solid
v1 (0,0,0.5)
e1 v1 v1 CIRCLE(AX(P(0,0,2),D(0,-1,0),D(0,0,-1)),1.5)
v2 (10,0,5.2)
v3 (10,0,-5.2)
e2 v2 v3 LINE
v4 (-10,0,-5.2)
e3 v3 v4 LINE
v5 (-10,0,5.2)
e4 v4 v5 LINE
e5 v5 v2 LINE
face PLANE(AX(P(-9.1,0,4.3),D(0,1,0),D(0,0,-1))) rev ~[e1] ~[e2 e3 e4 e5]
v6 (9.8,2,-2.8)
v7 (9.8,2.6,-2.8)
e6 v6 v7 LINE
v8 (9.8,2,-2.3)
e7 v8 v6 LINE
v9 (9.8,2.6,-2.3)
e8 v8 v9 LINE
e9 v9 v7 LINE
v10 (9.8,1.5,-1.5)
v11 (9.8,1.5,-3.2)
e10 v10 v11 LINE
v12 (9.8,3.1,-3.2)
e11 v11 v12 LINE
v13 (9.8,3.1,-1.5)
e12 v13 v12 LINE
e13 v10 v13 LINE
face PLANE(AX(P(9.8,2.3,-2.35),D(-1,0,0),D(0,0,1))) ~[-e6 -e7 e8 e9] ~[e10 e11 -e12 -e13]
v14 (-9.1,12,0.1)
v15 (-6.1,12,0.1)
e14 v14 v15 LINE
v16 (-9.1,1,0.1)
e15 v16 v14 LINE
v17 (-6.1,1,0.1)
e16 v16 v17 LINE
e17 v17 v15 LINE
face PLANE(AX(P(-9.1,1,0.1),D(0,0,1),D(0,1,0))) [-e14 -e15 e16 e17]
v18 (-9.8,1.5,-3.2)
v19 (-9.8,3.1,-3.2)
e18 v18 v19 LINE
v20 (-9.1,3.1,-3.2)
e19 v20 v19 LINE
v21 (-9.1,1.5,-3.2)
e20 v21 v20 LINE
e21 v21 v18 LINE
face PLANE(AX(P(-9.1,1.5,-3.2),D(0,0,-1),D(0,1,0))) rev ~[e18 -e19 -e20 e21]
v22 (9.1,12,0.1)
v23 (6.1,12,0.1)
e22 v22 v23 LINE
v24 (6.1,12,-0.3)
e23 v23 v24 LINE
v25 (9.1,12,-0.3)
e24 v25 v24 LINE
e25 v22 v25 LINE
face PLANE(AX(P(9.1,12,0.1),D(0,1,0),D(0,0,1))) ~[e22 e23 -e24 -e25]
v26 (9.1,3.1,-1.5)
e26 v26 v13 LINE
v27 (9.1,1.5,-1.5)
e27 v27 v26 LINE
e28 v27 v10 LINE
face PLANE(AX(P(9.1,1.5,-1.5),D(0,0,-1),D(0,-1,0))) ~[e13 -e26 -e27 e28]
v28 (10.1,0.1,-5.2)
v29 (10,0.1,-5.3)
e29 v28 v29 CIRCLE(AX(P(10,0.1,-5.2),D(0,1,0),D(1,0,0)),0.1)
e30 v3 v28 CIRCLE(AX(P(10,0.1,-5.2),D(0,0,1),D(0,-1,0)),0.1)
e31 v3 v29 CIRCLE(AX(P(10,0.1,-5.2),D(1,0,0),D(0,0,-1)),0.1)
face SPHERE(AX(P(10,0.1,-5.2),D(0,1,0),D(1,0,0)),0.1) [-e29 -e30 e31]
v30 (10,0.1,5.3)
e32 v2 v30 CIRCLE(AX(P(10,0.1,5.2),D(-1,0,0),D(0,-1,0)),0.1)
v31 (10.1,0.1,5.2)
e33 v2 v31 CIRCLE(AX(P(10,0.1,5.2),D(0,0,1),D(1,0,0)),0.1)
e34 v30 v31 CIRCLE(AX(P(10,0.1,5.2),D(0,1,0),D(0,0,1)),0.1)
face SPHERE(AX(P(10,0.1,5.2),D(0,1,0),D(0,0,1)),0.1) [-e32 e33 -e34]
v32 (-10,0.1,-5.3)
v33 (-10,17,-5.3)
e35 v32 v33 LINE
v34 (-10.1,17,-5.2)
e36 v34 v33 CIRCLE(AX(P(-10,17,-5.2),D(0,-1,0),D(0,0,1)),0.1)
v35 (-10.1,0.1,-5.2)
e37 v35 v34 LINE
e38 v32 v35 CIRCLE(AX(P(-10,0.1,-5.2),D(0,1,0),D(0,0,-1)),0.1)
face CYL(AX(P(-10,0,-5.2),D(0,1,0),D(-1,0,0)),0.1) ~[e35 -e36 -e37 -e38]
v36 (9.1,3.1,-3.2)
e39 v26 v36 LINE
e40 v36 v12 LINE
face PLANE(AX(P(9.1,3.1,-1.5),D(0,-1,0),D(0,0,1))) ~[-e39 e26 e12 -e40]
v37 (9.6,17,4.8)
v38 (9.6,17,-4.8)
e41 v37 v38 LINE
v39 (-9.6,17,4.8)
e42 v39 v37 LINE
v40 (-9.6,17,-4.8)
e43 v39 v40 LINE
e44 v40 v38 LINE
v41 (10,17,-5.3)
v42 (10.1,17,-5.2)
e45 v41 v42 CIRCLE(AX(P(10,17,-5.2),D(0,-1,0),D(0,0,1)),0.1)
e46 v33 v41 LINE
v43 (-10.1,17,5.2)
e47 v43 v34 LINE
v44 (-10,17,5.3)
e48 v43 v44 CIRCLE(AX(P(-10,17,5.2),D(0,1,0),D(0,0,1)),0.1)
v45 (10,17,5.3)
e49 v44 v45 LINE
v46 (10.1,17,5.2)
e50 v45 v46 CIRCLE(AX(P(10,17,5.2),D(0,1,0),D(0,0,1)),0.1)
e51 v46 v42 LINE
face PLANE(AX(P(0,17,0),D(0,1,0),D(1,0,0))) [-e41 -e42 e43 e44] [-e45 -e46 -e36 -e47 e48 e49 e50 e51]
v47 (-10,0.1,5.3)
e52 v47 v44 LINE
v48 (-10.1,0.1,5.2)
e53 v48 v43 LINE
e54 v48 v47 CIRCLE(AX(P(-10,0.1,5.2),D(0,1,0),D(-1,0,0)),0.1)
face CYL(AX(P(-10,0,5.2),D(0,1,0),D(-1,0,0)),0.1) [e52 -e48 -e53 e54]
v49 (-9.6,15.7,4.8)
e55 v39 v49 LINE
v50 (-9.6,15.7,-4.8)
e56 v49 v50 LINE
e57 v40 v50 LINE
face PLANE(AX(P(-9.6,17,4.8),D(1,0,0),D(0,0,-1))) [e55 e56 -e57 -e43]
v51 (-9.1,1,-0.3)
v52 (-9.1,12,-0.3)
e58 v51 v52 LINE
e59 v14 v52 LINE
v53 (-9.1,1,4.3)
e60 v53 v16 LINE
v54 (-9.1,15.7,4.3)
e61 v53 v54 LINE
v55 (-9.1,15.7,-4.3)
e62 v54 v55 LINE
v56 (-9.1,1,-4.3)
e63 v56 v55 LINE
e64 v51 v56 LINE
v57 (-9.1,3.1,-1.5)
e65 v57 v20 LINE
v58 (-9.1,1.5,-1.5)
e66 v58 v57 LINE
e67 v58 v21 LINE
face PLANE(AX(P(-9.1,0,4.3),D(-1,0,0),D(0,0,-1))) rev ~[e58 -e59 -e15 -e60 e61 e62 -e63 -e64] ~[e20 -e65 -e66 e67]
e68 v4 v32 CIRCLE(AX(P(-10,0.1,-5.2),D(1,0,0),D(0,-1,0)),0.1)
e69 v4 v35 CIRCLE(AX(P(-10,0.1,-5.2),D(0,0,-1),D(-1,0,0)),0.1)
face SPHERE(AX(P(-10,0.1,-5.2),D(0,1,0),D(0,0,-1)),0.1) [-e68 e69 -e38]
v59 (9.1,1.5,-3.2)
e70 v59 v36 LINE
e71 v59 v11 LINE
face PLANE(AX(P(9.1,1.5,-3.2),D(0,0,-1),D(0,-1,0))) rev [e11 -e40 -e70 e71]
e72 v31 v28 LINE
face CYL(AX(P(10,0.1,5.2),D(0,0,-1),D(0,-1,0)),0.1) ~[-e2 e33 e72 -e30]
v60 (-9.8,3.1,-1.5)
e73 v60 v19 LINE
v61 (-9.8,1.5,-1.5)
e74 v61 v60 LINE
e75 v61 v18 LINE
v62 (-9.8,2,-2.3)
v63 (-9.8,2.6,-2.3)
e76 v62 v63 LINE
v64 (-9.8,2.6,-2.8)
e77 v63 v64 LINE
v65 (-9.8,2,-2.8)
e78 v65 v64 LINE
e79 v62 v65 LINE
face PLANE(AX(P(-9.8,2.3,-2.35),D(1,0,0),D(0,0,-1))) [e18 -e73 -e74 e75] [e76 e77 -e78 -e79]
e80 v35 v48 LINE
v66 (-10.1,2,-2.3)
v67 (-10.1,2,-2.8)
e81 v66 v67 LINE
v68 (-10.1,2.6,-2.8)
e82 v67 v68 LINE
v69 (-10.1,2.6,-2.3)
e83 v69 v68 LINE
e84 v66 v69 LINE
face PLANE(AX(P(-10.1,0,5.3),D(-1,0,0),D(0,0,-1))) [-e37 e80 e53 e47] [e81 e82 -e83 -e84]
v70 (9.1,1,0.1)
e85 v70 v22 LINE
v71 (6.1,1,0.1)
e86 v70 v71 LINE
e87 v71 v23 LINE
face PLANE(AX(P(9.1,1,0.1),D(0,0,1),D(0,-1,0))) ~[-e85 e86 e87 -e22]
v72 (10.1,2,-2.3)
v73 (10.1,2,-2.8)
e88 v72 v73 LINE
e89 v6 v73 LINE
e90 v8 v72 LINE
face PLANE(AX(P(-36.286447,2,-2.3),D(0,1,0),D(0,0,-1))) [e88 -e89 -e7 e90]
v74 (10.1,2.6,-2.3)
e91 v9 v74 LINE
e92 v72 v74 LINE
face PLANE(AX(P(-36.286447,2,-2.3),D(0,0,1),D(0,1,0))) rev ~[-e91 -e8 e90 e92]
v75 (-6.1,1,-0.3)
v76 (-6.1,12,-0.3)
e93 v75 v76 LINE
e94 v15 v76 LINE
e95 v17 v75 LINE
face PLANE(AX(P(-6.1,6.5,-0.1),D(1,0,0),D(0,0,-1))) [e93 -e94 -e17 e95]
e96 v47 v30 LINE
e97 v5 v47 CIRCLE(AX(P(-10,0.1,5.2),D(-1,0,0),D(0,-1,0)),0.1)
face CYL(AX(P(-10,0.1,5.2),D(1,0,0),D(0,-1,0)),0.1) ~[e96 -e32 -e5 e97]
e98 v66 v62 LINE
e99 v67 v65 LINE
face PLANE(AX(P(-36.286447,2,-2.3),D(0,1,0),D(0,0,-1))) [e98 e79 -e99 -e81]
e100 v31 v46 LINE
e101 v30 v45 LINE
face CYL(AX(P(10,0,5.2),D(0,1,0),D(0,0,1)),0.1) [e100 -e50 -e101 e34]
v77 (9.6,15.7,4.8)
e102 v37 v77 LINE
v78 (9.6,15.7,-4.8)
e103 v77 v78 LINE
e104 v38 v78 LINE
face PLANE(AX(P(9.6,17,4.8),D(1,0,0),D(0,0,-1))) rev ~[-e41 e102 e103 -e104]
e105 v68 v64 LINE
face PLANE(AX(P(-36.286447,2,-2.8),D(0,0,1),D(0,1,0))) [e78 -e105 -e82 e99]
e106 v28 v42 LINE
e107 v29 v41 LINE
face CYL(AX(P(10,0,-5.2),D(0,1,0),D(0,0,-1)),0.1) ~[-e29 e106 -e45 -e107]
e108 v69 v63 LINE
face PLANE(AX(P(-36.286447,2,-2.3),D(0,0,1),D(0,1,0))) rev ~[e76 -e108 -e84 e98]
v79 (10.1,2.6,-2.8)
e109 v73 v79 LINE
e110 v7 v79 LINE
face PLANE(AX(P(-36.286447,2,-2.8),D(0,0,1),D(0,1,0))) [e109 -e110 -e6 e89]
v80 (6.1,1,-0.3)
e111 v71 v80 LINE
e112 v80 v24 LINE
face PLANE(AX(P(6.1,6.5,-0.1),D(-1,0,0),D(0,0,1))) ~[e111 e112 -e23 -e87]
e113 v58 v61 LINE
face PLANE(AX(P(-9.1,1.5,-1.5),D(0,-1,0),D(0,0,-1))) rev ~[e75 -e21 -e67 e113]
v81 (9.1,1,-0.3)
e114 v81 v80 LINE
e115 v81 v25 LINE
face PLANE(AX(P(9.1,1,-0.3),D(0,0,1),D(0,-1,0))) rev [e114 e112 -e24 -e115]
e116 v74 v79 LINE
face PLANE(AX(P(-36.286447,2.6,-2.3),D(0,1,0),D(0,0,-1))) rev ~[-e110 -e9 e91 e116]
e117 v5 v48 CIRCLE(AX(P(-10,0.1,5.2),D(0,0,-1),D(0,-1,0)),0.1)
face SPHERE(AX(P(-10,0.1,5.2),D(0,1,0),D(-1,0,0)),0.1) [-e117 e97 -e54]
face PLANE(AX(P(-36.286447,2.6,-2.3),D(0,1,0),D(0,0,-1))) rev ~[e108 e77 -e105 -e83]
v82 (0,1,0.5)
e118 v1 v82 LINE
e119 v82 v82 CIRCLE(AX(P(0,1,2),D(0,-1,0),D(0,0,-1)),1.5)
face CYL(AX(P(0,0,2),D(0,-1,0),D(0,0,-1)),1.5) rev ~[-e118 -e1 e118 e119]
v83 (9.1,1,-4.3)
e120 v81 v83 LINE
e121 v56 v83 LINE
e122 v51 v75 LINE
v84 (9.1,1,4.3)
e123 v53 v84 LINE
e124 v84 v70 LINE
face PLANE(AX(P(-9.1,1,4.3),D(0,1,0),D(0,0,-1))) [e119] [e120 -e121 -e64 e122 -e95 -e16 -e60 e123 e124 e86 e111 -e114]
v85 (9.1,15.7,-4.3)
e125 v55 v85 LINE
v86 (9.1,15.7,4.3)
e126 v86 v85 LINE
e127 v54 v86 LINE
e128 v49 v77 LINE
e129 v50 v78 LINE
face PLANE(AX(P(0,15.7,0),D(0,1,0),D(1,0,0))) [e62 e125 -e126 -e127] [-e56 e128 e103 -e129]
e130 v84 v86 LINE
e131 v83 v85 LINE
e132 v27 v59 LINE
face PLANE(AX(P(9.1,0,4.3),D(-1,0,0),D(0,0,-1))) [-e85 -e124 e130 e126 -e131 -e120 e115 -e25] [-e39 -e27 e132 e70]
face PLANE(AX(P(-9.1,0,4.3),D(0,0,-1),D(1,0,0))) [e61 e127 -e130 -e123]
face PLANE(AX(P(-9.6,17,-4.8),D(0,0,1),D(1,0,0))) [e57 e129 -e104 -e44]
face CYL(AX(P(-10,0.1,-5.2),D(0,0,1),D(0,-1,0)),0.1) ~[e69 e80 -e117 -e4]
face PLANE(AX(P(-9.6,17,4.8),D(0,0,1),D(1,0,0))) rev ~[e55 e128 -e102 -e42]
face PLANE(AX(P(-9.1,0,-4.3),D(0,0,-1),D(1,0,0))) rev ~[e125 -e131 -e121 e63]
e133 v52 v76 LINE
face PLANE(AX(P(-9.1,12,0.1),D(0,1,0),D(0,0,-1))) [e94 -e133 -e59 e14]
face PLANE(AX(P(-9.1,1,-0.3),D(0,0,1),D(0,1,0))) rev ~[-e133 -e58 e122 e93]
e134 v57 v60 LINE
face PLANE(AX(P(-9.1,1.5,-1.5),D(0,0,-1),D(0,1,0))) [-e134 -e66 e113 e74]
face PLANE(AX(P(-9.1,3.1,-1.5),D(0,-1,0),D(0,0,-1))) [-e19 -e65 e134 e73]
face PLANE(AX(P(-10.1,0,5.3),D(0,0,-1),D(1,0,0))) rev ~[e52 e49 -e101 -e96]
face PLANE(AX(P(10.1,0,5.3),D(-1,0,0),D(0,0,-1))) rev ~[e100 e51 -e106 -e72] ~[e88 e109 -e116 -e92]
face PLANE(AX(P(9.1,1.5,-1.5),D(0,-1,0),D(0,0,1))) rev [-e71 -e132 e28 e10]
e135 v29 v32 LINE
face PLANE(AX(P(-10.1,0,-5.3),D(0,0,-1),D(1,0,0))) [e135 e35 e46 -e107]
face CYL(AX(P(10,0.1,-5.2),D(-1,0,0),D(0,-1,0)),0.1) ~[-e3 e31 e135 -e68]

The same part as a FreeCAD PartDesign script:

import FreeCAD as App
import Part
import Sketcher
from FreeCAD import Vector


def edges_at(feature, points):
    """Names of the edges that pass closest to the given points."""
    edges = feature.Shape.Edges
    near = lambda p: min(range(len(edges)), key=lambda i: edges[i].distToShape(Part.Vertex(*p))[0])
    return sorted({f"Edge{near(p) + 1}" for p in points})


def add_polygon(sketch, points):
    """Adds a closed chain of lines whose ends are joined by coincident constraints."""
    first, n = sketch.GeometryCount, len(points)
    for a, b in zip(points, points[1:] + points[:1]):
        sketch.addGeometry(Part.LineSegment(App.Vector(*a, 0), App.Vector(*b, 0)), False)
    for i in range(n):
        sketch.addConstraint(Sketcher.Constraint("Coincident", first + i, 2, first + (i + 1) % n, 1))

doc = App.newDocument("Part")
body = doc.addObject("PartDesign::Body", "Body")

sketch1 = doc.addObject("Sketcher::SketchObject", "Sketch")
body.addObject(sketch1)
sketch1.AttachmentSupport = (doc.XZ_Plane, [""])
sketch1.MapMode = "FlatFace"
add_polygon(sketch1, [(-10, -5), (-10, 5), (10, 5), (10, -5)])
add_polygon(sketch1, [(9, 4), (-9, 4), (-9, -4), (9, -4)])
sketch1.addConstraint([
    Sketcher.Constraint("Vertical", 0),
    Sketcher.Constraint("Horizontal", 1),
    Sketcher.Constraint("Vertical", 2),
    Sketcher.Constraint("Horizontal", 3),
    Sketcher.Constraint("Horizontal", 4),
    Sketcher.Constraint("Vertical", 5),
    Sketcher.Constraint("Horizontal", 6),
    Sketcher.Constraint("Vertical", 7),
    Sketcher.Constraint("Symmetric", 0, 2, 2, 2, -1, 1),
    Sketcher.Constraint("Symmetric", 4, 2, 6, 2, -1, 1),
    Sketcher.Constraint("DistanceX", 1, 1, 1, 2, 20.2),
    Sketcher.Constraint("DistanceX", 4, 2, 4, 1, 18.2),
    Sketcher.Constraint("DistanceY", 0, 1, 0, 2, 10.6),
    Sketcher.Constraint("DistanceY", 5, 2, 5, 1, 8.6),
])
pad1 = doc.addObject("PartDesign::Pad", "Pad")
body.addObject(pad1)
pad1.Profile = sketch1
pad1.Length = 17
pad1.Reversed = True

sketch2 = doc.addObject("Sketcher::SketchObject", "Sketch001")
body.addObject(sketch2)
sketch2.AttachmentSupport = (doc.YZ_Plane, [""])
sketch2.MapMode = "FlatFace"
sketch2.AttachmentOffset = App.Placement(Vector(0, 0, -9.1), App.Rotation())
add_polygon(sketch2, [(1, 4.3), (0, 4.3), (0, -4.3), (1, -4.3)])
sketch2.addConstraint([
    Sketcher.Constraint("Horizontal", 0),
    Sketcher.Constraint("Vertical", 1),
    Sketcher.Constraint("Horizontal", 2),
    Sketcher.Constraint("Vertical", 3),
    Sketcher.Constraint("Symmetric", 0, 2, 1, 2, -1, 1),
    Sketcher.Constraint("DistanceX", 0, 2, 0, 1, 1.0),
    Sketcher.Constraint("DistanceY", 1, 2, 1, 1, 8.6),
])
pad2 = doc.addObject("PartDesign::Pad", "Pad001")
body.addObject(pad2)
pad2.Profile = sketch2
pad2.Length = 19.2

sketch3 = doc.addObject("Sketcher::SketchObject", "Sketch002")
body.addObject(sketch3)
sketch3.AttachmentSupport = (doc.XZ_Plane, [""])
sketch3.MapMode = "FlatFace"
sketch3.AttachmentOffset = App.Placement(Vector(0, 0, -17), App.Rotation())
add_polygon(sketch3, [(-10, -5), (-10, 5), (10, 5), (10, -5)])
sketch3.addConstraint([
    Sketcher.Constraint("Vertical", 0),
    Sketcher.Constraint("Horizontal", 1),
    Sketcher.Constraint("Vertical", 2),
    Sketcher.Constraint("Horizontal", 3),
    Sketcher.Constraint("Symmetric", 0, 2, 2, 2, -1, 1),
    Sketcher.Constraint("DistanceX", 1, 1, 1, 2, 19.2),
    Sketcher.Constraint("DistanceY", 0, 1, 0, 2, 9.6),
])
pocket1 = doc.addObject("PartDesign::Pocket", "Pocket")
body.addObject(pocket1)
pocket1.Profile = sketch3
pocket1.Length = 1.3
pocket1.Reversed = True

sketch4 = doc.addObject("Sketcher::SketchObject", "Sketch003")
body.addObject(sketch4)
sketch4.AttachmentSupport = (doc.XZ_Plane, [""])
sketch4.MapMode = "FlatFace"
sketch4.addGeometry(Part.Circle(Vector(0, 2, 0), Vector(0, 0, 1), 1.5), False)
sketch4.addConstraint([
    Sketcher.Constraint("PointOnObject", 0, 3, -2),
    Sketcher.Constraint("Diameter", 0, 3.0),
    Sketcher.Constraint("DistanceY", -1, 1, 0, 3, 2.0),
])
pocket2 = doc.addObject("PartDesign::Pocket", "Pocket001")
body.addObject(pocket2)
pocket2.Profile = sketch4
pocket2.Type = "UpToFirst"

sketch5 = doc.addObject("Sketcher::SketchObject", "Sketch004")
body.addObject(sketch5)
sketch5.AttachmentSupport = (doc.YZ_Plane, [""])
sketch5.MapMode = "FlatFace"
sketch5.AttachmentOffset = App.Placement(Vector(0, 0, -9.1), App.Rotation())
add_polygon(sketch5, [(12, 0.1), (1, 0.1), (1, -0.3), (12, -0.3)])
sketch5.addConstraint([
    Sketcher.Constraint("Horizontal", 0),
    Sketcher.Constraint("Vertical", 1),
    Sketcher.Constraint("Horizontal", 2),
    Sketcher.Constraint("Vertical", 3),
    Sketcher.Constraint("DistanceX", 0, 2, 0, 1, 11.0),
    Sketcher.Constraint("DistanceY", 1, 2, 1, 1, 0.4),
    Sketcher.Constraint("DistanceX", -1, 1, 0, 2, 1.0),
    Sketcher.Constraint("DistanceY", -1, 1, 0, 2, 0.1),
])
pad3 = doc.addObject("PartDesign::Pad", "Pad002")
body.addObject(pad3)
pad3.Profile = sketch5
pad3.Length = 3
doc.recompute()

mirrored = doc.addObject("PartDesign::Mirrored", "Mirrored")
body.addObject(mirrored)
mirrored.Originals = [pad3]
mirrored.MirrorPlane = (doc.YZ_Plane, [""])
body.Tip = mirrored

sketch6 = doc.addObject("Sketcher::SketchObject", "Sketch005")
body.addObject(sketch6)
sketch6.AttachmentSupport = (doc.YZ_Plane, [""])
sketch6.MapMode = "FlatFace"
sketch6.AttachmentOffset = App.Placement(Vector(0, 0, -9.1), App.Rotation())
add_polygon(sketch6, [(2.6, -2.3), (2, -2.3), (2, -2.8), (2.6, -2.8)])
sketch6.addConstraint([
    Sketcher.Constraint("Horizontal", 0),
    Sketcher.Constraint("Vertical", 1),
    Sketcher.Constraint("Horizontal", 2),
    Sketcher.Constraint("Vertical", 3),
    Sketcher.Constraint("DistanceX", 0, 2, 0, 1, 0.6),
    Sketcher.Constraint("DistanceY", 1, 2, 1, 1, 0.5),
    Sketcher.Constraint("DistanceX", -1, 1, 0, 2, 2.0),
    Sketcher.Constraint("DistanceY", 0, 2, -1, 1, 2.3),
])
pocket3 = doc.addObject("PartDesign::Pocket", "Pocket002")
body.addObject(pocket3)
pocket3.Profile = sketch6
pocket3.Type = "ThroughAll"
pocket3.Midplane = True
doc.recompute()

fillet = doc.addObject("PartDesign::Fillet", "Fillet")
body.addObject(fillet)
fillet.Base = (pocket3, edges_at(pocket3, [
    (10.1, 8.5, 5.3),
    (-10.1, 8.5, 5.3),
    (-10.1, 8.5, -5.3),
    (10.1, 8.5, -5.3),
]))
fillet.Radius = 0.1
doc.recompute()

fillet2 = doc.addObject("PartDesign::Fillet", "Fillet001")
body.addObject(fillet2)
fillet2.Base = (fillet, edges_at(fillet, [
    (0, 0, 5.3),
    (0, 0, -5.3),
    (10.1, 0, 0),
    (-10.1, 0, 0),
    (-10.071, 0, -5.271),
    (10.071, 0, -5.271),
    (10.071, 0, 5.271),
    (-10.071, 0, 5.271),
]))
fillet2.Radius = 0.1

sketch7 = doc.addObject("Sketcher::SketchObject", "Sketch006")
body.addObject(sketch7)
sketch7.AttachmentSupport = (doc.YZ_Plane, [""])
sketch7.MapMode = "FlatFace"
sketch7.AttachmentOffset = App.Placement(Vector(0, 0, -9.1), App.Rotation())
add_polygon(sketch7, [(3.1, -1.5), (1.5, -1.5), (1.5, -3.2), (3.1, -3.2)])
sketch7.addConstraint([
    Sketcher.Constraint("Horizontal", 0),
    Sketcher.Constraint("Vertical", 1),
    Sketcher.Constraint("Horizontal", 2),
    Sketcher.Constraint("Vertical", 3),
    Sketcher.Constraint("DistanceX", 0, 2, 0, 1, 1.6),
    Sketcher.Constraint("DistanceY", 1, 2, 1, 1, 1.7),
    Sketcher.Constraint("DistanceX", -1, 1, 0, 2, 1.5),
    Sketcher.Constraint("DistanceY", 0, 2, -1, 1, 1.5),
])
pocket4 = doc.addObject("PartDesign::Pocket", "Pocket003")
body.addObject(pocket4)
pocket4.Profile = sketch7
pocket4.Length = 0.7
doc.recompute()

mirrored2 = doc.addObject("PartDesign::Mirrored", "Mirrored001")
body.addObject(mirrored2)
mirrored2.Originals = [pocket4]
mirrored2.MirrorPlane = (doc.YZ_Plane, [""])
body.Tip = mirrored2

doc.recompute()
